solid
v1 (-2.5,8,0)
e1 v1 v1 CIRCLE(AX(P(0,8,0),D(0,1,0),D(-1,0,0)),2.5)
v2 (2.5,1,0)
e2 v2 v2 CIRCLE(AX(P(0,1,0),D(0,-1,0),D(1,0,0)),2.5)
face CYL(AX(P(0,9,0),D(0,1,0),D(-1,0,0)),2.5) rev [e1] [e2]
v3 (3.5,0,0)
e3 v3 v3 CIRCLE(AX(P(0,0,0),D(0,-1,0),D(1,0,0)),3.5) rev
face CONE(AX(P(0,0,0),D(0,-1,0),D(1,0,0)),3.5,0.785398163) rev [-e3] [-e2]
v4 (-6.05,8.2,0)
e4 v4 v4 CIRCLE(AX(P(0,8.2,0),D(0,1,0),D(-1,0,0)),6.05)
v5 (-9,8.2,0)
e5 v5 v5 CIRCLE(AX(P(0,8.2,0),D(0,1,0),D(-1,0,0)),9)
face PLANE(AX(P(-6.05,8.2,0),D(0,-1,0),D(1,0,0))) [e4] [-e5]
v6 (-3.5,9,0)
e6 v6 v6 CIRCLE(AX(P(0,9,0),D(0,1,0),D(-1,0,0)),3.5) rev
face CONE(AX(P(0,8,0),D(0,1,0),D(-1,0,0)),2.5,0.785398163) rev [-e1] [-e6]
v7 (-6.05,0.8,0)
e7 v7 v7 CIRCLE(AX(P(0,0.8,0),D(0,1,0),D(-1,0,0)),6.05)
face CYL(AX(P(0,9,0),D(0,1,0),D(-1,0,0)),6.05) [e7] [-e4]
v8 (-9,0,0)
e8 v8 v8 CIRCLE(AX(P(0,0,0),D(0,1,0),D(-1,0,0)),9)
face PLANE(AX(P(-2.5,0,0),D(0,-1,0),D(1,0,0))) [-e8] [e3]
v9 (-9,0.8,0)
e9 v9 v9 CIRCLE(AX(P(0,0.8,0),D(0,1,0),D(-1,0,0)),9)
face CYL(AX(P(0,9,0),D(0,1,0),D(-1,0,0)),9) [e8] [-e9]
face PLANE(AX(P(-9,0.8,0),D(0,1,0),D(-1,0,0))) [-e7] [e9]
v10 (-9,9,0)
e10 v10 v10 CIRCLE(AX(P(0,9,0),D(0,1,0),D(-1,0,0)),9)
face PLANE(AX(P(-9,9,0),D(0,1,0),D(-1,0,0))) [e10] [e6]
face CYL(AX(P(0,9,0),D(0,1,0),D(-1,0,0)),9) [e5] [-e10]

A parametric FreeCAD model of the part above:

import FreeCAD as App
import Part
import Sketcher


def edges_at(feature, points):
    """Names of the edges that pass closest to the given points."""
    edges = feature.Shape.Edges
    near = lambda p: min(range(len(edges)), key=lambda i: edges[i].distToShape(Part.Vertex(*p))[0])
    return sorted({f"Edge{near(p) + 1}" for p in points})


def add_polygon(sketch, points):
    """Adds a closed chain of lines whose ends are joined by coincident constraints."""
    first, n = sketch.GeometryCount, len(points)
    for a, b in zip(points, points[1:] + points[:1]):
        sketch.addGeometry(Part.LineSegment(App.Vector(*a, 0), App.Vector(*b, 0)), False)
    for i in range(n):
        sketch.addConstraint(Sketcher.Constraint("Coincident", first + i, 2, first + (i + 1) % n, 1))

doc = App.newDocument("Part")
body = doc.addObject("PartDesign::Body", "Body")

# Sketch on XY plane
sketch1 = body.newObject("Sketcher::SketchObject", "Sketch")
sketch1.AttachmentSupport = (doc.getObject("XY_Plane"), [""])
sketch1.MapMode = "FlatFace"
add_polygon(sketch1, [(-9, 0), (-2.5, 0), (-2.5, 9), (-9, 9), (-9, 8.2), (-6.05, 8.2), (-6.05, 0.8), (-9, 0.8)])  # lines 0-7
sketch1.addConstraint([
    Sketcher.Constraint("Horizontal", 0),
    Sketcher.Constraint("Vertical", 1),
    Sketcher.Constraint("Horizontal", 2),
    Sketcher.Constraint("Vertical", 3),
    Sketcher.Constraint("Horizontal", 4),
    Sketcher.Constraint("Vertical", 5),
    Sketcher.Constraint("Horizontal", 6),
    Sketcher.Constraint("Vertical", 7),
    Sketcher.Constraint("PointOnObject", 0, 2, -1),
    Sketcher.Constraint("Vertical", 3, 2, 6, 2),
    Sketcher.Constraint("Equal", 3, 7),
    Sketcher.Constraint("DistanceY", 1, 1, 1, 2, 9.0),
    Sketcher.Constraint("DistanceX", 0, 1, 0, 2, 6.5),
    Sketcher.Constraint("DistanceY", 3, 2, 3, 1, 0.8),
    Sketcher.Constraint("DistanceX", 2, 2, -1, 1, 9.0),
    Sketcher.Constraint("DistanceX", 4, 1, 4, 2, 2.95),
])
revolution = body.newObject("PartDesign::Revolution", "Revolution")
revolution.Profile = sketch1
revolution.ReferenceAxis = (sketch1, ["V_Axis"])
revolution.Angle = 360
doc.recompute()

chamfer = body.newObject("PartDesign::Chamfer", "Chamfer")
chamfer.Base = (revolution, edges_at(revolution, [(2.5, 9, 0)]))
chamfer.Size = 1
doc.recompute()

chamfer2 = body.newObject("PartDesign::Chamfer", "Chamfer001")
chamfer2.Base = (chamfer, edges_at(chamfer, [(2.5, 0, 0)]))
chamfer2.Size = 1

doc.recompute()
